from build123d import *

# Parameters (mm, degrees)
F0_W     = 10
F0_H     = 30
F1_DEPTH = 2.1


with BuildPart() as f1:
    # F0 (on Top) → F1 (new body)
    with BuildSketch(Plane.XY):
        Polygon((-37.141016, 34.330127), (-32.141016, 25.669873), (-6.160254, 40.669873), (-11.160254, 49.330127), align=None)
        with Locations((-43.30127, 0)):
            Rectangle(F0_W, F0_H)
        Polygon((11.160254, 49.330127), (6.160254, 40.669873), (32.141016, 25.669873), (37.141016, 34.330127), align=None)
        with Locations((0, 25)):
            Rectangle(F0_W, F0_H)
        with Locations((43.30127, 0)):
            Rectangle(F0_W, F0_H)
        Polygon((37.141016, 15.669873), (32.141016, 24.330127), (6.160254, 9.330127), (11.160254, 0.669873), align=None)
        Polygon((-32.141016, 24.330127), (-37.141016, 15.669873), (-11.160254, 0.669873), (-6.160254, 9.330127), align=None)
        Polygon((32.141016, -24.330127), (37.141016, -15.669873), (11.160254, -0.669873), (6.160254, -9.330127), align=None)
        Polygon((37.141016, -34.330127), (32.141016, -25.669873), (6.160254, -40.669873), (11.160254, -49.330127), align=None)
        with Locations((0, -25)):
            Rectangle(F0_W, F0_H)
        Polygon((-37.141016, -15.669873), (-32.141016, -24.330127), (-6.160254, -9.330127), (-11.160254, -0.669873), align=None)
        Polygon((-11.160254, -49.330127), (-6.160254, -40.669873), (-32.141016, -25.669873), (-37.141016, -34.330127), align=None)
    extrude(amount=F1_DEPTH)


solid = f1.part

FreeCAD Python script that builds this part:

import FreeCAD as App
import Part
import Sketcher

V = App.Vector
Q = App.Units.Quantity

doc = App.newDocument("Part")
body = doc.addObject("PartDesign::Body", "Body")
body.AllowCompound = True

sketch1 = body.newObject("Sketcher::SketchObject", "Sketch")
sketch1.AttachmentSupport = (doc.getObject("XY_Plane"), [""])
sketch1.MapMode = "FlatFace"
sketch1.addGeometry(Part.LineSegment(V(-37, 34, 0), V(-32, 26, 0)), False)
sketch1.addGeometry(Part.LineSegment(V(-32, 26, 0), V(-6, 41, 0)), False)
sketch1.addGeometry(Part.LineSegment(V(-6, 41, 0), V(-11, 49, 0)), False)
sketch1.addGeometry(Part.LineSegment(V(-11, 49, 0), V(-37, 34, 0)), False)
sketch1.addGeometry(Part.LineSegment(V(-48, 15, 0), V(-48, -15, 0)), False)
sketch1.addGeometry(Part.LineSegment(V(-48, -15, 0), V(-38, -15, 0)), False)
sketch1.addGeometry(Part.LineSegment(V(-38, -15, 0), V(-38, 15, 0)), False)
sketch1.addGeometry(Part.LineSegment(V(-38, 15, 0), V(-48, 15, 0)), False)
sketch1.addGeometry(Part.LineSegment(V(11, 49, 0), V(6, 41, 0)), False)
sketch1.addGeometry(Part.LineSegment(V(6, 41, 0), V(32, 26, 0)), False)
sketch1.addGeometry(Part.LineSegment(V(32, 26, 0), V(37, 34, 0)), False)
sketch1.addGeometry(Part.LineSegment(V(37, 34, 0), V(11, 49, 0)), False)
sketch1.addGeometry(Part.LineSegment(V(-5, 40, 0), V(-5, 10, 0)), False)
sketch1.addGeometry(Part.LineSegment(V(-5, 10, 0), V(5, 10, 0)), False)
sketch1.addGeometry(Part.LineSegment(V(5, 10, 0), V(5, 40, 0)), False)
sketch1.addGeometry(Part.LineSegment(V(5, 40, 0), V(-5, 40, 0)), False)
sketch1.addGeometry(Part.LineSegment(V(38, 15, 0), V(38, -15, 0)), False)
sketch1.addGeometry(Part.LineSegment(V(38, -15, 0), V(48, -15, 0)), False)
sketch1.addGeometry(Part.LineSegment(V(48, -15, 0), V(48, 15, 0)), False)
sketch1.addGeometry(Part.LineSegment(V(48, 15, 0), V(38, 15, 0)), False)
sketch1.addGeometry(Part.LineSegment(V(37, 16, 0), V(32, 24, 0)), False)
sketch1.addGeometry(Part.LineSegment(V(32, 24, 0), V(6, 9, 0)), False)
sketch1.addGeometry(Part.LineSegment(V(6, 9, 0), V(11, 1, 0)), False)
sketch1.addGeometry(Part.LineSegment(V(11, 1, 0), V(37, 16, 0)), False)
sketch1.addGeometry(Part.LineSegment(V(-32, 24, 0), V(-37, 16, 0)), False)
sketch1.addGeometry(Part.LineSegment(V(-37, 16, 0), V(-11, 1, 0)), False)
sketch1.addGeometry(Part.LineSegment(V(-11, 1, 0), V(-6, 9, 0)), False)
sketch1.addGeometry(Part.LineSegment(V(-6, 9, 0), V(-32, 24, 0)), False)
sketch1.addGeometry(Part.LineSegment(V(32, -24, 0), V(37, -16, 0)), False)
sketch1.addGeometry(Part.LineSegment(V(37, -16, 0), V(11, -1, 0)), False)
sketch1.addGeometry(Part.LineSegment(V(11, -1, 0), V(6, -9, 0)), False)
sketch1.addGeometry(Part.LineSegment(V(6, -9, 0), V(32, -24, 0)), False)
sketch1.addGeometry(Part.LineSegment(V(37, -34, 0), V(32, -26, 0)), False)
sketch1.addGeometry(Part.LineSegment(V(32, -26, 0), V(6, -41, 0)), False)
sketch1.addGeometry(Part.LineSegment(V(6, -41, 0), V(11, -49, 0)), False)
sketch1.addGeometry(Part.LineSegment(V(11, -49, 0), V(37, -34, 0)), False)
sketch1.addGeometry(Part.LineSegment(V(-5, -10, 0), V(-5, -40, 0)), False)
sketch1.addGeometry(Part.LineSegment(V(-5, -40, 0), V(5, -40, 0)), False)
sketch1.addGeometry(Part.LineSegment(V(5, -40, 0), V(5, -10, 0)), False)
sketch1.addGeometry(Part.LineSegment(V(5, -10, 0), V(-5, -10, 0)), False)
sketch1.addGeometry(Part.LineSegment(V(-37, -16, 0), V(-32, -24, 0)), False)
sketch1.addGeometry(Part.LineSegment(V(-32, -24, 0), V(-6, -9, 0)), False)
sketch1.addGeometry(Part.LineSegment(V(-6, -9, 0), V(-11, -1, 0)), False)
sketch1.addGeometry(Part.LineSegment(V(-11, -1, 0), V(-37, -16, 0)), False)
sketch1.addGeometry(Part.LineSegment(V(-11, -49, 0), V(-6, -41, 0)), False)
sketch1.addGeometry(Part.LineSegment(V(-6, -41, 0), V(-32, -26, 0)), False)
sketch1.addGeometry(Part.LineSegment(V(-32, -26, 0), V(-37, -34, 0)), False)
sketch1.addGeometry(Part.LineSegment(V(-37, -34, 0), V(-11, -49, 0)), False)
sketch1.addConstraint(Sketcher.Constraint("Coincident", 0, 2, 1, 1))
sketch1.addConstraint(Sketcher.Constraint("Coincident", 1, 2, 2, 1))
sketch1.addConstraint(Sketcher.Constraint("Coincident", 2, 2, 3, 1))
sketch1.addConstraint(Sketcher.Constraint("Coincident", 3, 2, 0, 1))
sketch1.addConstraint(Sketcher.Constraint("Coincident", 4, 2, 5, 1))
sketch1.addConstraint(Sketcher.Constraint("Coincident", 5, 2, 6, 1))
sketch1.addConstraint(Sketcher.Constraint("Coincident", 6, 2, 7, 1))
sketch1.addConstraint(Sketcher.Constraint("Coincident", 7, 2, 4, 1))
sketch1.addConstraint(Sketcher.Constraint("Coincident", 8, 2, 9, 1))
sketch1.addConstraint(Sketcher.Constraint("Coincident", 9, 2, 10, 1))
sketch1.addConstraint(Sketcher.Constraint("Coincident", 10, 2, 11, 1))
sketch1.addConstraint(Sketcher.Constraint("Coincident", 11, 2, 8, 1))
sketch1.addConstraint(Sketcher.Constraint("Coincident", 12, 2, 13, 1))
sketch1.addConstraint(Sketcher.Constraint("Coincident", 13, 2, 14, 1))
sketch1.addConstraint(Sketcher.Constraint("Coincident", 14, 2, 15, 1))
sketch1.addConstraint(Sketcher.Constraint("Coincident", 15, 2, 12, 1))
sketch1.addConstraint(Sketcher.Constraint("Coincident", 16, 2, 17, 1))
sketch1.addConstraint(Sketcher.Constraint("Coincident", 17, 2, 18, 1))
sketch1.addConstraint(Sketcher.Constraint("Coincident", 18, 2, 19, 1))
sketch1.addConstraint(Sketcher.Constraint("Coincident", 19, 2, 16, 1))
sketch1.addConstraint(Sketcher.Constraint("Coincident", 20, 2, 21, 1))
sketch1.addConstraint(Sketcher.Constraint("Coincident", 21, 2, 22, 1))
sketch1.addConstraint(Sketcher.Constraint("Coincident", 22, 2, 23, 1))
sketch1.addConstraint(Sketcher.Constraint("Coincident", 23, 2, 20, 1))
sketch1.addConstraint(Sketcher.Constraint("Coincident", 24, 2, 25, 1))
sketch1.addConstraint(Sketcher.Constraint("Coincident", 25, 2, 26, 1))
sketch1.addConstraint(Sketcher.Constraint("Coincident", 26, 2, 27, 1))
sketch1.addConstraint(Sketcher.Constraint("Coincident", 27, 2, 24, 1))
sketch1.addConstraint(Sketcher.Constraint("Coincident", 28, 2, 29, 1))
sketch1.addConstraint(Sketcher.Constraint("Coincident", 29, 2, 30, 1))
sketch1.addConstraint(Sketcher.Constraint("Coincident", 30, 2, 31, 1))
sketch1.addConstraint(Sketcher.Constraint("Coincident", 31, 2, 28, 1))
sketch1.addConstraint(Sketcher.Constraint("Coincident", 32, 2, 33, 1))
sketch1.addConstraint(Sketcher.Constraint("Coincident", 33, 2, 34, 1))
sketch1.addConstraint(Sketcher.Constraint("Coincident", 34, 2, 35, 1))
sketch1.addConstraint(Sketcher.Constraint("Coincident", 35, 2, 32, 1))
sketch1.addConstraint(Sketcher.Constraint("Coincident", 36, 2, 37, 1))
sketch1.addConstraint(Sketcher.Constraint("Coincident", 37, 2, 38, 1))
sketch1.addConstraint(Sketcher.Constraint("Coincident", 38, 2, 39, 1))
sketch1.addConstraint(Sketcher.Constraint("Coincident", 39, 2, 36, 1))
sketch1.addConstraint(Sketcher.Constraint("Coincident", 40, 2, 41, 1))
sketch1.addConstraint(Sketcher.Constraint("Coincident", 41, 2, 42, 1))
sketch1.addConstraint(Sketcher.Constraint("Coincident", 42, 2, 43, 1))
sketch1.addConstraint(Sketcher.Constraint("Coincident", 43, 2, 40, 1))
sketch1.addConstraint(Sketcher.Constraint("Coincident", 44, 2, 45, 1))
sketch1.addConstraint(Sketcher.Constraint("Coincident", 45, 2, 46, 1))
sketch1.addConstraint(Sketcher.Constraint("Coincident", 46, 2, 47, 1))
sketch1.addConstraint(Sketcher.Constraint("Coincident", 47, 2, 44, 1))
sketch1.addConstraint(Sketcher.Constraint("Vertical", 4))
sketch1.addConstraint(Sketcher.Constraint("Horizontal", 5))
sketch1.addConstraint(Sketcher.Constraint("Vertical", 6))
sketch1.addConstraint(Sketcher.Constraint("Horizontal", 7))
sketch1.addConstraint(Sketcher.Constraint("Vertical", 12))
sketch1.addConstraint(Sketcher.Constraint("Horizontal", 13))
sketch1.addConstraint(Sketcher.Constraint("Vertical", 14))
sketch1.addConstraint(Sketcher.Constraint("Horizontal", 15))
sketch1.addConstraint(Sketcher.Constraint("Vertical", 16))
sketch1.addConstraint(Sketcher.Constraint("Horizontal", 17))
sketch1.addConstraint(Sketcher.Constraint("Vertical", 18))
sketch1.addConstraint(Sketcher.Constraint("Horizontal", 19))
sketch1.addConstraint(Sketcher.Constraint("Vertical", 36))
sketch1.addConstraint(Sketcher.Constraint("Horizontal", 37))
sketch1.addConstraint(Sketcher.Constraint("Vertical", 38))
sketch1.addConstraint(Sketcher.Constraint("Horizontal", 39))
sketch1.addConstraint(Sketcher.Constraint("Symmetric", 6, 2, 16, 2, -1, 1))
sketch1.addConstraint(Sketcher.Constraint("Symmetric", 4, 2, 18, 2, -1, 1))
sketch1.addConstraint(Sketcher.Constraint("Symmetric", 24, 2, 28, 2, -1, 1))
sketch1.addConstraint(Sketcher.Constraint("Symmetric", 25, 2, 29, 2, -1, 1))
sketch1.addConstraint(Sketcher.Constraint("Symmetric", 26, 2, 30, 2, -1, 1))
sketch1.addConstraint(Sketcher.Constraint("Symmetric", 27, 2, 31, 2, -1, 1))
sketch1.addConstraint(Sketcher.Constraint("Symmetric", 0, 2, 32, 2, -1, 1))
sketch1.addConstraint(Sketcher.Constraint("Symmetric", 1, 2, 33, 2, -1, 1))
sketch1.addConstraint(Sketcher.Constraint("Symmetric", 2, 2, 34, 2, -1, 1))
sketch1.addConstraint(Sketcher.Constraint("Symmetric", 3, 2, 35, 2, -1, 1))
sketch1.addConstraint(Sketcher.Constraint("Symmetric", 14, 2, 36, 2, -1, 1))
sketch1.addConstraint(Sketcher.Constraint("Symmetric", 12, 2, 38, 2, -1, 1))
sketch1.addConstraint(Sketcher.Constraint("Symmetric", 20, 2, 40, 2, -1, 1))
sketch1.addConstraint(Sketcher.Constraint("Symmetric", 21, 2, 41, 2, -1, 1))
sketch1.addConstraint(Sketcher.Constraint("Symmetric", 22, 2, 42, 2, -1, 1))
sketch1.addConstraint(Sketcher.Constraint("Symmetric", 23, 2, 43, 2, -1, 1))
sketch1.addConstraint(Sketcher.Constraint("Symmetric", 8, 2, 44, 2, -1, 1))
sketch1.addConstraint(Sketcher.Constraint("Symmetric", 9, 2, 45, 2, -1, 1))
sketch1.addConstraint(Sketcher.Constraint("Symmetric", 10, 2, 46, 2, -1, 1))
sketch1.addConstraint(Sketcher.Constraint("Symmetric", 11, 2, 47, 2, -1, 1))
sketch1.addConstraint(Sketcher.Constraint("Symmetric", 1, 2, 8, 2, -2))
sketch1.addConstraint(Sketcher.Constraint("Symmetric", 0, 2, 9, 2, -2))
sketch1.addConstraint(Sketcher.Constraint("Symmetric", 3, 2, 10, 2, -2))
sketch1.addConstraint(Sketcher.Constraint("Symmetric", 2, 2, 11, 2, -2))
sketch1.addConstraint(Sketcher.Constraint("Symmetric", 23, 2, 24, 2, -2))
sketch1.addConstraint(Sketcher.Constraint("Symmetric", 22, 2, 25, 2, -2))
sketch1.addConstraint(Sketcher.Constraint("Symmetric", 21, 2, 26, 2, -2))
sketch1.addConstraint(Sketcher.Constraint("Symmetric", 20, 2, 27, 2, -2))
sketch1.addConstraint(Sketcher.Constraint("Perpendicular", 0, 1))
sketch1.addConstraint(Sketcher.Constraint("Perpendicular", 1, 2))
sketch1.addConstraint(Sketcher.Constraint("Perpendicular", 2, 3))
sketch1.addConstraint(Sketcher.Constraint("Perpendicular", 3, 20))
sketch1.addConstraint(Sketcher.Constraint("Perpendicular", 20, 21))
sketch1.addConstraint(Sketcher.Constraint("Perpendicular", 21, 22))
sketch1.addConstraint(Sketcher.Constraint("Perpendicular", 22, 23))
sketch1.addConstraint(Sketcher.Constraint("Horizontal", 5, 2, 16, 2))
sketch1.addConstraint(Sketcher.Constraint("Vertical", 9, 2, 20, 2))
sketch1.addConstraint(Sketcher.Constraint("Vertical", 8, 2, 21, 2))
sketch1.addConstraint(Sketcher.Constraint("Vertical", 11, 2, 22, 2))
sketch1.addConstraint(Sketcher.Constraint("Vertical", 15, 2, 36, 2))
sketch1.addConstraint(Sketcher.Constraint("Equal", 7, 13))
sketch1.addConstraint(Sketcher.Constraint("Equal", 6, 12))
sketch1.addConstraint(Sketcher.Constraint("DistanceX", 5, 1, 5, 2, Q("10 mm")))
sketch1.addConstraint(Sketcher.Constraint("DistanceY", 4, 2, 4, 1, Q("30 mm")))
sketch1.addConstraint(Sketcher.Constraint("Angle", 0, Q("-60 deg")))
sketch1.addConstraint(Sketcher.Constraint("Distance", 0, Q("10 mm")))
sketch1.addConstraint(Sketcher.Constraint("Distance", 1, Q("30 mm")))
sketch1.addConstraint(Sketcher.Constraint("DistanceY", -1, 1, 12, 2, Q("10 mm")))
sketch1.addConstraint(Sketcher.Constraint("DistanceY", 20, 2, 10, 2, Q("10 mm")))
sketch1.addConstraint(Sketcher.Constraint("DistanceY", 29, 2, 21, 2, Q("10 mm")))
sketch1.addConstraint(Sketcher.Constraint("DistanceX", 4, 2, -1, 1, Q("48.30127 mm")))
sketch1.addConstraint(Sketcher.Constraint("DistanceX", 2, 2, 8, 2, Q("17.320508 mm")))
pad1 = body.newObject("PartDesign::Pad", "Pad")
pad1.Profile = sketch1
pad1.Length = 2.1

doc.recompute()
